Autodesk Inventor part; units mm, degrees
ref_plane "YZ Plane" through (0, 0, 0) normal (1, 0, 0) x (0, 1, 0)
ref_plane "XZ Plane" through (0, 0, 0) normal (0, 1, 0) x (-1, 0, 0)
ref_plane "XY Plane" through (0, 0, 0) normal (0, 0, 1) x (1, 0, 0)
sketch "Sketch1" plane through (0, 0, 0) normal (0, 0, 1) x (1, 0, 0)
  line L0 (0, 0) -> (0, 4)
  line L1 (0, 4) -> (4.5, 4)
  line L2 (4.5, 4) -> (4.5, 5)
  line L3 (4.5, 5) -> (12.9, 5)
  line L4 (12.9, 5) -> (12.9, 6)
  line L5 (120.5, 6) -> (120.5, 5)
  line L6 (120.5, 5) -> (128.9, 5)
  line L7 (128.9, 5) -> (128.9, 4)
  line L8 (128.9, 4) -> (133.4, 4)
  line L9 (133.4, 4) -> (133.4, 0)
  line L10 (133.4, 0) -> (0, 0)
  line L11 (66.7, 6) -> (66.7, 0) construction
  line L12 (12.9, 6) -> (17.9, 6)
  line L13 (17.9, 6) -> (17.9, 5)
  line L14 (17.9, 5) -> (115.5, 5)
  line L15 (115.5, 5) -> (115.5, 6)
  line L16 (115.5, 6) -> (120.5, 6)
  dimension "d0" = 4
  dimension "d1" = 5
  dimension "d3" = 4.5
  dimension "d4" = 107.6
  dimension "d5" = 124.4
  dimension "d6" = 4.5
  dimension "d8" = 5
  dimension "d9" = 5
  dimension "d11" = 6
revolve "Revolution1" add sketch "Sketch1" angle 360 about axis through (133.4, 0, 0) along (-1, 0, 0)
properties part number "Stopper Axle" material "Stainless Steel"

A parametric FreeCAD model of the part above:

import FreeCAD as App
import Part
import Sketcher
from FreeCAD import Vector

doc = App.newDocument("Part")
body = doc.addObject("PartDesign::Body", "Body")

# Sketch on XY plane
sketch1 = body.newObject("Sketcher::SketchObject", "Sketch")
sketch1.AttachmentSupport = (doc.getObject("XY_Plane"), [""])
sketch1.MapMode = "FlatFace"
sketch1.addGeometry(Part.LineSegment(Vector(0, 4, 0), Vector(0, 0, 0)), False)
sketch1.addGeometry(Part.LineSegment(Vector(0, 0, 0), Vector(133.4, 0, 0)), False)
sketch1.addGeometry(Part.LineSegment(Vector(133.4, 0, 0), Vector(133.4, 4, 0)), False)
sketch1.addGeometry(Part.LineSegment(Vector(133.4, 4, 0), Vector(128.9, 4, 0)), False)
sketch1.addGeometry(Part.LineSegment(Vector(128.9, 4, 0), Vector(128.9, 5, 0)), False)
sketch1.addGeometry(Part.LineSegment(Vector(128.9, 5, 0), Vector(120.5, 5, 0)), False)
sketch1.addGeometry(Part.LineSegment(Vector(120.5, 5, 0), Vector(120.5, 6, 0)), False)
sketch1.addGeometry(Part.LineSegment(Vector(120.5, 6, 0), Vector(115.5, 6, 0)), False)
sketch1.addGeometry(Part.LineSegment(Vector(115.5, 6, 0), Vector(115.5, 5, 0)), False)
sketch1.addGeometry(Part.LineSegment(Vector(115.5, 5, 0), Vector(17.9, 5, 0)), False)
sketch1.addGeometry(Part.LineSegment(Vector(17.9, 5, 0), Vector(17.9, 6, 0)), False)
sketch1.addGeometry(Part.LineSegment(Vector(17.9, 6, 0), Vector(12.9, 6, 0)), False)
sketch1.addGeometry(Part.LineSegment(Vector(12.9, 6, 0), Vector(12.9, 5, 0)), False)
sketch1.addGeometry(Part.LineSegment(Vector(12.9, 5, 0), Vector(4.5, 5, 0)), False)
sketch1.addGeometry(Part.LineSegment(Vector(4.5, 5, 0), Vector(4.5, 4, 0)), False)
sketch1.addGeometry(Part.LineSegment(Vector(4.5, 4, 0), Vector(0, 4, 0)), False)
sketch1.addConstraint(Sketcher.Constraint("Coincident", 0, 2, 1, 1))
sketch1.addConstraint(Sketcher.Constraint("Coincident", 1, 2, 2, 1))
sketch1.addConstraint(Sketcher.Constraint("Coincident", 2, 2, 3, 1))
sketch1.addConstraint(Sketcher.Constraint("Coincident", 3, 2, 4, 1))
sketch1.addConstraint(Sketcher.Constraint("Coincident", 4, 2, 5, 1))
sketch1.addConstraint(Sketcher.Constraint("Coincident", 5, 2, 6, 1))
sketch1.addConstraint(Sketcher.Constraint("Coincident", 6, 2, 7, 1))
sketch1.addConstraint(Sketcher.Constraint("Coincident", 7, 2, 8, 1))
sketch1.addConstraint(Sketcher.Constraint("Coincident", 8, 2, 9, 1))
sketch1.addConstraint(Sketcher.Constraint("Coincident", 9, 2, 10, 1))
sketch1.addConstraint(Sketcher.Constraint("Coincident", 10, 2, 11, 1))
sketch1.addConstraint(Sketcher.Constraint("Coincident", 11, 2, 12, 1))
sketch1.addConstraint(Sketcher.Constraint("Coincident", 12, 2, 13, 1))
sketch1.addConstraint(Sketcher.Constraint("Coincident", 13, 2, 14, 1))
sketch1.addConstraint(Sketcher.Constraint("Coincident", 14, 2, 15, 1))
sketch1.addConstraint(Sketcher.Constraint("Coincident", 15, 2, 0, 1))
sketch1.addConstraint(Sketcher.Constraint("Vertical", 0))
sketch1.addConstraint(Sketcher.Constraint("Horizontal", 1))
sketch1.addConstraint(Sketcher.Constraint("Vertical", 2))
sketch1.addConstraint(Sketcher.Constraint("Horizontal", 3))
sketch1.addConstraint(Sketcher.Constraint("Vertical", 4))
sketch1.addConstraint(Sketcher.Constraint("Horizontal", 5))
sketch1.addConstraint(Sketcher.Constraint("Vertical", 6))
sketch1.addConstraint(Sketcher.Constraint("Horizontal", 7))
sketch1.addConstraint(Sketcher.Constraint("Vertical", 8))
sketch1.addConstraint(Sketcher.Constraint("Horizontal", 9))
sketch1.addConstraint(Sketcher.Constraint("Vertical", 10))
sketch1.addConstraint(Sketcher.Constraint("Horizontal", 11))
sketch1.addConstraint(Sketcher.Constraint("Vertical", 12))
sketch1.addConstraint(Sketcher.Constraint("Horizontal", 13))
sketch1.addConstraint(Sketcher.Constraint("Vertical", 14))
sketch1.addConstraint(Sketcher.Constraint("Horizontal", 15))
sketch1.addConstraint(Sketcher.Constraint("Coincident", 0, 2, -1, 1))
sketch1.addConstraint(Sketcher.Constraint("Horizontal", 5, 2, 8, 2))
sketch1.addConstraint(Sketcher.Constraint("Horizontal", 7, 2, 10, 2))
sketch1.addConstraint(Sketcher.Constraint("Horizontal", 9, 2, 12, 2))
sketch1.addConstraint(Sketcher.Constraint("Horizontal", 3, 2, 14, 2))
sketch1.addConstraint(Sketcher.Constraint("Equal", 7, 11))
sketch1.addConstraint(Sketcher.Constraint("Equal", 5, 13))
sketch1.addConstraint(Sketcher.Constraint("Equal", 3, 15))
sketch1.addConstraint(Sketcher.Constraint("Equal", 4, 6))
sketch1.addConstraint(Sketcher.Constraint("DistanceX", 7, 2, 7, 1, 5.0))
sketch1.addConstraint(Sketcher.Constraint("DistanceY", 0, 2, 0, 1, 4.0))
sketch1.addConstraint(Sketcher.Constraint("DistanceX", 3, 2, 3, 1, 4.5))
sketch1.addConstraint(Sketcher.Constraint("DistanceY", -1, 1, 4, 2, 5.0))
sketch1.addConstraint(Sketcher.Constraint("DistanceX", 1, 1, 1, 2, 133.4))
sketch1.addConstraint(Sketcher.Constraint("DistanceX", 5, 2, 5, 1, 8.4))
revolution = body.newObject("PartDesign::Revolution", "Revolution")
revolution.Profile = sketch1
revolution.ReferenceAxis = (sketch1, ["H_Axis"])
revolution.Angle = 360

doc.recompute()
